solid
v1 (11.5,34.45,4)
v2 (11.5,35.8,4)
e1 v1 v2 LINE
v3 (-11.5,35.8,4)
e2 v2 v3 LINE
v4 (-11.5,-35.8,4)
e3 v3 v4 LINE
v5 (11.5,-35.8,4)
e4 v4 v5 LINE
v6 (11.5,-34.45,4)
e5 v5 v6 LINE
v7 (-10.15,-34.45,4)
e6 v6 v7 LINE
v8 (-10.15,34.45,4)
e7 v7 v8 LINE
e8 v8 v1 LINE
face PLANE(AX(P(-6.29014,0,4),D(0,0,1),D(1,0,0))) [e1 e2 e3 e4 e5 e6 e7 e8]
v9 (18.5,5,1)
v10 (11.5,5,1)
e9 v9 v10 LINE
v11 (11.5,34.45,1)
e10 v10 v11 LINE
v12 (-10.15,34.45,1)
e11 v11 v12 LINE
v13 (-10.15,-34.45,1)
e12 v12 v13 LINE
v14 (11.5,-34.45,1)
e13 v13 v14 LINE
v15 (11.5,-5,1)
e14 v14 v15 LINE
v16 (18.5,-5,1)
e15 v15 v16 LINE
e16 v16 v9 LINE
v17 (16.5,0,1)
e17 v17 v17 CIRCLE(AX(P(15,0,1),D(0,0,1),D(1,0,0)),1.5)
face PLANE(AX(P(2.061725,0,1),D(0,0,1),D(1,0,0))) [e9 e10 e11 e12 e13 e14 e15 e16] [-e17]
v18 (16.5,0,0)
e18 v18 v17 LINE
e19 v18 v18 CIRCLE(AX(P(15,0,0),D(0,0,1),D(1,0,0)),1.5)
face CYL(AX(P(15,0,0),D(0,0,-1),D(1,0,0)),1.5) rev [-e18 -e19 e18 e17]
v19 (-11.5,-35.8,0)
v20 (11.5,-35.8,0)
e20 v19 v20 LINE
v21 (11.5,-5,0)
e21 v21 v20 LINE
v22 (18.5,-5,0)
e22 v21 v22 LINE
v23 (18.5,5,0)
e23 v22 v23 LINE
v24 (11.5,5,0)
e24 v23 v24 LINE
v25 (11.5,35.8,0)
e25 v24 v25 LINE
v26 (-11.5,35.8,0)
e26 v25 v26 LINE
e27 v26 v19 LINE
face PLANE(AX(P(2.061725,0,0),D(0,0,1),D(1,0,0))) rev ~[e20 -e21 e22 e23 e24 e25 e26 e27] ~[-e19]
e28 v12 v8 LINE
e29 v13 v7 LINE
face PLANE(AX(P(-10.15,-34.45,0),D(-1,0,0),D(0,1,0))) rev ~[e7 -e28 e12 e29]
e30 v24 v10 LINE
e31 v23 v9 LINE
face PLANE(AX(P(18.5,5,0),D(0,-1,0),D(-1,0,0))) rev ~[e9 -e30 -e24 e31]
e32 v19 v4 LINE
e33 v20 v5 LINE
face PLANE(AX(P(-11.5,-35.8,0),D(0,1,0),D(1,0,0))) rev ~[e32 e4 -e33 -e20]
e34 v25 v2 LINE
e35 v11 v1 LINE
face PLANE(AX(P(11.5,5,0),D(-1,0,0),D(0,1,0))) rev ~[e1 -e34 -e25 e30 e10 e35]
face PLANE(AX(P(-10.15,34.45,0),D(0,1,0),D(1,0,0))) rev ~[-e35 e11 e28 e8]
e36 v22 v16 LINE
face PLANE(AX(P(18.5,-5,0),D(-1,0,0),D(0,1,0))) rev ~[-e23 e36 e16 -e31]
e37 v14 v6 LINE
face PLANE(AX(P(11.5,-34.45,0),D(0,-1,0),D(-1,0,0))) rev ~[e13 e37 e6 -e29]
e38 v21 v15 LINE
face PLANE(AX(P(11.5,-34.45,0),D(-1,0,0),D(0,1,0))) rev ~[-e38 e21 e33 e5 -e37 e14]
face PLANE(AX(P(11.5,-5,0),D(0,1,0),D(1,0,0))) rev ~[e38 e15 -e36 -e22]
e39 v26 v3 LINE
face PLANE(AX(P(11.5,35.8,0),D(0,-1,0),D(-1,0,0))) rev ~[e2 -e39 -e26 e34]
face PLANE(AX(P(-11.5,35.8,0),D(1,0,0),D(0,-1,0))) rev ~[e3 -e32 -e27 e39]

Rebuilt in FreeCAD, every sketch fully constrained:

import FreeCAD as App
import Part
import Sketcher
from FreeCAD import Vector

doc = App.newDocument("Part")
params = doc.addObject("Spreadsheet::Sheet", "Params")
for row, (alias, value) in enumerate([
    ("sketch1_width", "23 mm"),
    ("sketch1_height", "71.6 mm"),
    ("sketch1_height2", "68.9 mm"),
    ("sketch1_width2", "21.65 mm"),
    ("pad1_length", "4 mm"),
    ("sketch2_diameter", "3 mm"),
    ("sketch2_width", "7 mm"),
    ("sketch2_height", "10 mm"),
    ("sketch2_height2", "68.9 mm"),
    ("sketch2_width2", "21.65 mm"),
    ("pad2_length", "1 mm"),
], start=1):
    params.set(f"A{row}", alias)
    params.set(f"B{row}", "=" + value)
    params.setAlias(f"B{row}", alias)

body = doc.addObject("PartDesign::Body", "Body")

# Sketch on XY plane
sketch1 = doc.addObject("Sketcher::SketchObject", "Sketch")
body.addObject(sketch1)
sketch1.AttachmentSupport = (doc.XY_Plane, [""])
sketch1.MapMode = "FlatFace"
sketch1.addGeometry(Part.LineSegment(Vector(11.5, 35.8, 0), Vector(-11.5, 35.8, 0)), False)
sketch1.addGeometry(Part.LineSegment(Vector(-11.5, 35.8, 0), Vector(-11.5, -35.8, 0)), False)
sketch1.addGeometry(Part.LineSegment(Vector(-11.5, -35.8, 0), Vector(11.5, -35.8, 0)), False)
sketch1.addGeometry(Part.LineSegment(Vector(11.5, -35.8, 0), Vector(11.5, -34.5, 0)), False)
sketch1.addGeometry(Part.LineSegment(Vector(11.5, -34.5, 0), Vector(-10.2, -34.5, 0)), False)
sketch1.addGeometry(Part.LineSegment(Vector(-10.2, -34.5, 0), Vector(-10.2, 34.5, 0)), False)
sketch1.addGeometry(Part.LineSegment(Vector(-10.2, 34.5, 0), Vector(11.5, 34.5, 0)), False)
sketch1.addGeometry(Part.LineSegment(Vector(11.5, 34.5, 0), Vector(11.5, 35.8, 0)), False)
sketch1.addConstraint(Sketcher.Constraint("Coincident", 0, 2, 1, 1))
sketch1.addConstraint(Sketcher.Constraint("Coincident", 1, 2, 2, 1))
sketch1.addConstraint(Sketcher.Constraint("Coincident", 2, 2, 3, 1))
sketch1.addConstraint(Sketcher.Constraint("Coincident", 3, 2, 4, 1))
sketch1.addConstraint(Sketcher.Constraint("Coincident", 4, 2, 5, 1))
sketch1.addConstraint(Sketcher.Constraint("Coincident", 5, 2, 6, 1))
sketch1.addConstraint(Sketcher.Constraint("Coincident", 6, 2, 7, 1))
sketch1.addConstraint(Sketcher.Constraint("Coincident", 7, 2, 0, 1))
sketch1.addConstraint(Sketcher.Constraint("Horizontal", 0))
sketch1.addConstraint(Sketcher.Constraint("Vertical", 1))
sketch1.addConstraint(Sketcher.Constraint("Horizontal", 2))
sketch1.addConstraint(Sketcher.Constraint("Vertical", 3))
sketch1.addConstraint(Sketcher.Constraint("Horizontal", 4))
sketch1.addConstraint(Sketcher.Constraint("Vertical", 5))
sketch1.addConstraint(Sketcher.Constraint("Horizontal", 6))
sketch1.addConstraint(Sketcher.Constraint("Vertical", 7))
sketch1.addConstraint(Sketcher.Constraint("Symmetric", 0, 2, 2, 2, -1, 1))
sketch1.addConstraint(Sketcher.Constraint("Symmetric", 3, 2, 6, 2, -1))
sketch1.addConstraint(Sketcher.Constraint("DistanceX", 0, 2, 0, 1, 23.0))
sketch1.addConstraint(Sketcher.Constraint("DistanceY", 1, 2, 1, 1, 71.6))
sketch1.addConstraint(Sketcher.Constraint("DistanceY", 5, 1, 5, 2, 68.9))
sketch1.addConstraint(Sketcher.Constraint("DistanceX", 4, 2, 4, 1, 21.65))
sketch1.setExpression("Constraints[18]", "Params.sketch1_width")
sketch1.setExpression("Constraints[19]", "Params.sketch1_height")
sketch1.setExpression("Constraints[20]", "Params.sketch1_height2")
sketch1.setExpression("Constraints[21]", "Params.sketch1_width2")
pad1 = doc.addObject("PartDesign::Pad", "Pad")
body.addObject(pad1)
pad1.Profile = sketch1
pad1.setExpression("Length", "Params.pad1_length")

# Sketch on XY plane
sketch2 = doc.addObject("Sketcher::SketchObject", "Sketch001")
body.addObject(sketch2)
sketch2.AttachmentSupport = (doc.XY_Plane, [""])
sketch2.MapMode = "FlatFace"
sketch2.addGeometry(Part.LineSegment(Vector(11.5, 5, 0), Vector(11.5, 34.5, 0)), False)
sketch2.addGeometry(Part.LineSegment(Vector(11.5, 34.5, 0), Vector(-10.2, 34.5, 0)), False)
sketch2.addGeometry(Part.LineSegment(Vector(-10.2, 34.5, 0), Vector(-10.2, -34.5, 0)), False)
sketch2.addGeometry(Part.LineSegment(Vector(-10.2, -34.5, 0), Vector(11.5, -34.5, 0)), False)
sketch2.addGeometry(Part.LineSegment(Vector(11.5, -34.5, 0), Vector(11.5, -5, 0)), False)
sketch2.addGeometry(Part.LineSegment(Vector(11.5, -5, 0), Vector(18.5, -5, 0)), False)
sketch2.addGeometry(Part.LineSegment(Vector(18.5, -5, 0), Vector(18.5, 5, 0)), False)
sketch2.addGeometry(Part.LineSegment(Vector(18.5, 5, 0), Vector(11.5, 5, 0)), False)
sketch2.addGeometry(Part.Circle(Vector(15, 0, 0), Vector(0, 0, 1), 1.5), False)
sketch2.addConstraint(Sketcher.Constraint("Coincident", 0, 2, 1, 1))
sketch2.addConstraint(Sketcher.Constraint("Coincident", 1, 2, 2, 1))
sketch2.addConstraint(Sketcher.Constraint("Coincident", 2, 2, 3, 1))
sketch2.addConstraint(Sketcher.Constraint("Coincident", 3, 2, 4, 1))
sketch2.addConstraint(Sketcher.Constraint("Coincident", 4, 2, 5, 1))
sketch2.addConstraint(Sketcher.Constraint("Coincident", 5, 2, 6, 1))
sketch2.addConstraint(Sketcher.Constraint("Coincident", 6, 2, 7, 1))
sketch2.addConstraint(Sketcher.Constraint("Coincident", 7, 2, 0, 1))
sketch2.addConstraint(Sketcher.Constraint("Vertical", 0))
sketch2.addConstraint(Sketcher.Constraint("Horizontal", 1))
sketch2.addConstraint(Sketcher.Constraint("Vertical", 2))
sketch2.addConstraint(Sketcher.Constraint("Horizontal", 3))
sketch2.addConstraint(Sketcher.Constraint("Vertical", 4))
sketch2.addConstraint(Sketcher.Constraint("Horizontal", 5))
sketch2.addConstraint(Sketcher.Constraint("Vertical", 6))
sketch2.addConstraint(Sketcher.Constraint("Horizontal", 7))
sketch2.addConstraint(Sketcher.Constraint("Symmetric", 0, 2, 3, 2, -1))
sketch2.addConstraint(Sketcher.Constraint("PointOnObject", 8, 3, -1))
sketch2.addConstraint(Sketcher.Constraint("Equal", 0, 4))
sketch2.addConstraint(Sketcher.Constraint("Diameter", 8, 3.0))
sketch2.addConstraint(Sketcher.Constraint("DistanceX", 5, 1, 5, 2, 7.0))
sketch2.addConstraint(Sketcher.Constraint("DistanceY", 6, 1, 6, 2, 10.0))
sketch2.addConstraint(Sketcher.Constraint("DistanceY", 2, 2, 2, 1, 68.9))
sketch2.addConstraint(Sketcher.Constraint("DistanceX", -1, 1, 8, 3, 15.0))
sketch2.addConstraint(Sketcher.Constraint("DistanceX", 1, 2, 1, 1, 21.65))
sketch2.addConstraint(Sketcher.Constraint("DistanceX", -1, 1, 0, 2, 11.5))
sketch2.setExpression("Constraints[19]", "Params.sketch2_diameter")
sketch2.setExpression("Constraints[20]", "Params.sketch2_width")
sketch2.setExpression("Constraints[21]", "Params.sketch2_height")
sketch2.setExpression("Constraints[22]", "Params.sketch2_height2")
sketch2.setExpression("Constraints[24]", "Params.sketch2_width2")
pad2 = doc.addObject("PartDesign::Pad", "Pad001")
body.addObject(pad2)
pad2.Profile = sketch2
pad2.setExpression("Length", "Params.pad2_length")

doc.recompute()
